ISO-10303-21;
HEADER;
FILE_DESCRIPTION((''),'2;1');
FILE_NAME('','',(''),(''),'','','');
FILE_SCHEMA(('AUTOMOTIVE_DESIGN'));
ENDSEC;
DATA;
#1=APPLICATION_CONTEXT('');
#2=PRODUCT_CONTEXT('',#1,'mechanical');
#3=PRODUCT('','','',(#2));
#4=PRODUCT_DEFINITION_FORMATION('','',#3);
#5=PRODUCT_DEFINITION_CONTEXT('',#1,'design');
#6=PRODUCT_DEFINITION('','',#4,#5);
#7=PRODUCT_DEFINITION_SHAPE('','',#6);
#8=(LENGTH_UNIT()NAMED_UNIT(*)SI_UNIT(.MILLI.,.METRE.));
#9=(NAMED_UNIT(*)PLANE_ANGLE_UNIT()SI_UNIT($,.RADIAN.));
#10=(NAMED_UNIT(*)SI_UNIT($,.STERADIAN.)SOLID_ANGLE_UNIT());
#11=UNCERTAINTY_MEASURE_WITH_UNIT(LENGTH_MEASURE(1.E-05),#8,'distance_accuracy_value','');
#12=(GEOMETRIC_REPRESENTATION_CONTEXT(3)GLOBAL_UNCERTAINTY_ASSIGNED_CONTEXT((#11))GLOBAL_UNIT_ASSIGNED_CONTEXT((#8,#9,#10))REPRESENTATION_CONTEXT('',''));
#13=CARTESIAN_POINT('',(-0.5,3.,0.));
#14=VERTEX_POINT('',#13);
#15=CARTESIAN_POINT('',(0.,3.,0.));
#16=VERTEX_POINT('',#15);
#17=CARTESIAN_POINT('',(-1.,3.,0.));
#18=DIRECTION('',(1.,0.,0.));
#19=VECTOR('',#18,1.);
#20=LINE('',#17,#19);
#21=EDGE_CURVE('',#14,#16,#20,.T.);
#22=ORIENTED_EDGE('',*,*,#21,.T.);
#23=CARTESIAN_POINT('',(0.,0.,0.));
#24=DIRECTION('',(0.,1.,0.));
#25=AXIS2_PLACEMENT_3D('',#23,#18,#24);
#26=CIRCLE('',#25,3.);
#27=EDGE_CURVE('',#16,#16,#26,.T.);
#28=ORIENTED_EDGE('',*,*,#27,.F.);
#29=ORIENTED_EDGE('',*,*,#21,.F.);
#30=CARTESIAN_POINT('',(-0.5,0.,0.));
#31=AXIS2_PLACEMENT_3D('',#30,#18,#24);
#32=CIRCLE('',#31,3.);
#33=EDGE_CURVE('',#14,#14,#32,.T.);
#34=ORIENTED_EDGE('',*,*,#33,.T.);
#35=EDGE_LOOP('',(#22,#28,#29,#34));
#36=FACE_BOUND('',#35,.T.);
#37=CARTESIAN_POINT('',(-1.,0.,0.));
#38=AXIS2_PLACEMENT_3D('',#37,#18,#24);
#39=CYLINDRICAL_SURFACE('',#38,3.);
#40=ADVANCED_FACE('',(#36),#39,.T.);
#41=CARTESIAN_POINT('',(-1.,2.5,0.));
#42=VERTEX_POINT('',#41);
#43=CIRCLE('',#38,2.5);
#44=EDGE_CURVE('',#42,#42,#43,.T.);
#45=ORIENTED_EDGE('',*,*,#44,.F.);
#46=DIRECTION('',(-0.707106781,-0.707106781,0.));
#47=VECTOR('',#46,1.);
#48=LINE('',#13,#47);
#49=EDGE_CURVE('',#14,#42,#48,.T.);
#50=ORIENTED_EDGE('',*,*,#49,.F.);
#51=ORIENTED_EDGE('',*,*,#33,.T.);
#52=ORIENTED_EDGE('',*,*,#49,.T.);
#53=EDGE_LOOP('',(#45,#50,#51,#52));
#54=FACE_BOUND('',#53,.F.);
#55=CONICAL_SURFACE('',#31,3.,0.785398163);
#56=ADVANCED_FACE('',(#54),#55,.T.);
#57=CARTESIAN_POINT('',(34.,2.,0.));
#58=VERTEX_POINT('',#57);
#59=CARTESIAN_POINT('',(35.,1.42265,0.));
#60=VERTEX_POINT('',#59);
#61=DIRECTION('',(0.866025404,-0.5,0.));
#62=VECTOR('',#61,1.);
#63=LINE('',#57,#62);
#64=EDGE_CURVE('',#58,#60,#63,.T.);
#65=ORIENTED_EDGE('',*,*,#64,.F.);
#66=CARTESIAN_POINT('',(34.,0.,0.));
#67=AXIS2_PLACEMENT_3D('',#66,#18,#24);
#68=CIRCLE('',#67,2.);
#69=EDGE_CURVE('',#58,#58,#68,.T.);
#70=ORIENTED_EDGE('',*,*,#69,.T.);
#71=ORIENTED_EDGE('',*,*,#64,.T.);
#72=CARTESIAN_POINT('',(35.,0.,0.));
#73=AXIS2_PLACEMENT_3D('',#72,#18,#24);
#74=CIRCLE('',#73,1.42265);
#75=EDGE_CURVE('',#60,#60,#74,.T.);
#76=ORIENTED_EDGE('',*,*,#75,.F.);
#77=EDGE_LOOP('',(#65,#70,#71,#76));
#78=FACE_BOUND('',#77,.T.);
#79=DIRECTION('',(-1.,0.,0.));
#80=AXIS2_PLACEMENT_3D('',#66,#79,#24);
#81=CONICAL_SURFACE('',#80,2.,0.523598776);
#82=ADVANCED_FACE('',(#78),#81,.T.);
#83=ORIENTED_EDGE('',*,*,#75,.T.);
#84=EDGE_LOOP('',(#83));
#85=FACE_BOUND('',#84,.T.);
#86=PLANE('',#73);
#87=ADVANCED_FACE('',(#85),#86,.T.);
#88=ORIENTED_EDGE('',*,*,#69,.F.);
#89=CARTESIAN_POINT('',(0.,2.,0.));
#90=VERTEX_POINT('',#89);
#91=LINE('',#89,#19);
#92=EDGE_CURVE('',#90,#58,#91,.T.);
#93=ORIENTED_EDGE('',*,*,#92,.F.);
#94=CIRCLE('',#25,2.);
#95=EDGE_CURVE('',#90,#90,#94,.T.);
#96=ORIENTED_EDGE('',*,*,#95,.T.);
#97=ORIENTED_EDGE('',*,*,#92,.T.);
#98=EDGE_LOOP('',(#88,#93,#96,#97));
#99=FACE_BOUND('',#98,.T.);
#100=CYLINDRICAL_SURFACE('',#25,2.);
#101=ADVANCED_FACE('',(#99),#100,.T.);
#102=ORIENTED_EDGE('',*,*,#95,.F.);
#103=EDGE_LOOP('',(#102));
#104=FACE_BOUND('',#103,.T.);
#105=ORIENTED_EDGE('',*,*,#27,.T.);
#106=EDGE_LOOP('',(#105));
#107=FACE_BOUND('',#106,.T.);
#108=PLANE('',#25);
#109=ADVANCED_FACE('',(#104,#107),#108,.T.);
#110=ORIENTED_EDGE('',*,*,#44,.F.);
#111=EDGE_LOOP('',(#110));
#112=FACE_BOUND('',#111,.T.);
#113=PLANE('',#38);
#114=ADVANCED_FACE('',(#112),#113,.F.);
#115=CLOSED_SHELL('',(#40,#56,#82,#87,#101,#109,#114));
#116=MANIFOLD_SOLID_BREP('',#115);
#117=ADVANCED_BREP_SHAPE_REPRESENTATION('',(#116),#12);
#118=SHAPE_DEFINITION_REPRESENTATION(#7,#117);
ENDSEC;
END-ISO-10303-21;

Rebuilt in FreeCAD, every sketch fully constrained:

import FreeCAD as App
import Part
import Sketcher
from FreeCAD import Vector
Q = App.Units.Quantity


def edges_at(feature, points):
    """Names of the edges that pass closest to the given points."""
    edges = feature.Shape.Edges
    near = lambda p: min(range(len(edges)), key=lambda i: edges[i].distToShape(Part.Vertex(*p))[0])
    return sorted({f"Edge{near(p) + 1}" for p in points})


def add_polygon(sketch, points):
    """Adds a closed chain of lines whose ends are joined by coincident constraints."""
    first, n = sketch.GeometryCount, len(points)
    for a, b in zip(points, points[1:] + points[:1]):
        sketch.addGeometry(Part.LineSegment(App.Vector(*a, 0), App.Vector(*b, 0)), False)
    for i in range(n):
        sketch.addConstraint(Sketcher.Constraint("Coincident", first + i, 2, first + (i + 1) % n, 1))

doc = App.newDocument("Part")
params = doc.addObject("Spreadsheet::Sheet", "Params")
for row, (alias, value) in enumerate([
    ("sketch1_width", "35 mm"),
    ("sketch1_width2", "1 mm"),
    ("sketch1_height", "3 mm"),
    ("revolution_angle", "360 deg"),
    ("chamfer_size", "1 mm"),
    ("chamfer2_size", "0.5 mm"),
], start=1):
    params.set(f"A{row}", alias)
    params.set(f"B{row}", "=" + value)
    params.setAlias(f"B{row}", alias)

body = doc.addObject("PartDesign::Body", "Body")

# Sketch on XY plane
sketch1 = body.newObject("Sketcher::SketchObject", "Sketch")
sketch1.AttachmentSupport = (doc.getObject("XY_Plane"), [""])
sketch1.MapMode = "FlatFace"
add_polygon(sketch1, [(-1, 3), (-1, 0), (35, 0), (35, 2), (0, 2), (0, 3)])  # lines 0-5
sketch1.addConstraint(Sketcher.Constraint("Vertical", 0))
sketch1.addConstraint(Sketcher.Constraint("Horizontal", 1))
sketch1.addConstraint(Sketcher.Constraint("Vertical", 2))
sketch1.addConstraint(Sketcher.Constraint("Horizontal", 3))
sketch1.addConstraint(Sketcher.Constraint("Vertical", 4))
sketch1.addConstraint(Sketcher.Constraint("Horizontal", 5))
sketch1.addConstraint(Sketcher.Constraint("PointOnObject", 0, 2, -1))
sketch1.addConstraint(Sketcher.Constraint("PointOnObject", 3, 2, -2))
sketch1.addConstraint(Sketcher.Constraint("Equal", 5, 4))
sketch1.addConstraint(Sketcher.Constraint("DistanceX", 3, 2, 3, 1, Q("35 mm")))
sketch1.addConstraint(Sketcher.Constraint("DistanceX", 5, 2, 5, 1, Q("1 mm")))
sketch1.addConstraint(Sketcher.Constraint("DistanceY", 0, 2, 0, 1, Q("3 mm")))
sketch1.setExpression("Constraints[15]", "Params.sketch1_width")
sketch1.setExpression("Constraints[16]", "Params.sketch1_width2")
sketch1.setExpression("Constraints[17]", "Params.sketch1_height")
revolution = body.newObject("PartDesign::Revolution", "Revolution")
revolution.Profile = sketch1
revolution.ReferenceAxis = (sketch1, ["H_Axis"])
revolution.setExpression("Angle", "Params.revolution_angle")
doc.recompute()

chamfer = body.newObject("PartDesign::Chamfer", "Chamfer")
chamfer.Base = (revolution, edges_at(revolution, [(35, -2, 0)]))
chamfer.ChamferType = "Distance and Angle"
chamfer.setExpression("Size", "Params.chamfer_size")
chamfer.Angle = 30
chamfer.FlipDirection = True
doc.recompute()

chamfer2 = body.newObject("PartDesign::Chamfer", "Chamfer001")
chamfer2.Base = (chamfer, edges_at(chamfer, [(-1, -3, 0)]))
chamfer2.setExpression("Size", "Params.chamfer2_size")

doc.recompute()
